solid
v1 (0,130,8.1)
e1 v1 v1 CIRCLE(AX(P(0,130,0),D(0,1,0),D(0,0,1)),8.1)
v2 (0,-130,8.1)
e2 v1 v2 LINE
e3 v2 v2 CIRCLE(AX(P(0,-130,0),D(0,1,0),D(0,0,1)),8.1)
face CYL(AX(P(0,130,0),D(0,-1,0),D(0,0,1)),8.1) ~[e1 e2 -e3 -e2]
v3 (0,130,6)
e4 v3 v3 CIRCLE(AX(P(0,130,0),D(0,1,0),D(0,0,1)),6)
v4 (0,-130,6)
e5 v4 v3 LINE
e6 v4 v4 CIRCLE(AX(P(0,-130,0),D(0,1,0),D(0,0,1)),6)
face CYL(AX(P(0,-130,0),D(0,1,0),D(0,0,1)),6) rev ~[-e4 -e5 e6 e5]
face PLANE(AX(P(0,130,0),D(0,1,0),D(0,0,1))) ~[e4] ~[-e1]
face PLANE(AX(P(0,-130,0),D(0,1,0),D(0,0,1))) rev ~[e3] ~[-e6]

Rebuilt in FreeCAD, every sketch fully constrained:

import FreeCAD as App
import Part
import Sketcher
Q = App.Units.Quantity


def add_polygon(sketch, points):
    """Adds a closed chain of lines whose ends are joined by coincident constraints."""
    first, n = sketch.GeometryCount, len(points)
    for a, b in zip(points, points[1:] + points[:1]):
        sketch.addGeometry(Part.LineSegment(App.Vector(*a, 0), App.Vector(*b, 0)), False)
    for i in range(n):
        sketch.addConstraint(Sketcher.Constraint("Coincident", first + i, 2, first + (i + 1) % n, 1))

doc = App.newDocument("Part")
params = doc.addObject("Spreadsheet::Sheet", "Params")
for row, (alias, value) in enumerate([
    ("sketch1_height", "2.1 mm"),
    ("revolution_angle", "360 deg"),
], start=1):
    params.set(f"A{row}", alias)
    params.set(f"B{row}", "=" + value)
    params.setAlias(f"B{row}", alias)

body = doc.addObject("PartDesign::Body", "Body")

# Sketch on YZ plane
sketch1 = body.newObject("Sketcher::SketchObject", "Sketch")
sketch1.AttachmentSupport = (doc.getObject("YZ_Plane"), [""])
sketch1.MapMode = "FlatFace"
add_polygon(sketch1, [(130, 8.1), (-130, 8.1), (-130, 6), (130, 6)])  # lines 0-3
sketch1.addConstraint(Sketcher.Constraint("Horizontal", 0))
sketch1.addConstraint(Sketcher.Constraint("Vertical", 1))
sketch1.addConstraint(Sketcher.Constraint("Horizontal", 2))
sketch1.addConstraint(Sketcher.Constraint("Vertical", 3))
sketch1.addConstraint(Sketcher.Constraint("DistanceX", 0, 2, -1, 1, Q("130 mm")))
sketch1.addConstraint(Sketcher.Constraint("DistanceX", -1, 1, 2, 2, Q("130 mm")))
sketch1.addConstraint(Sketcher.Constraint("DistanceY", 1, 2, 1, 1, Q("2.1 mm")))
sketch1.addConstraint(Sketcher.Constraint("DistanceY", -1, 1, 1, 2, Q("6 mm")))
sketch1.setExpression("Constraints[10]", "Params.sketch1_height")
revolution = body.newObject("PartDesign::Revolution", "Revolution")
revolution.Profile = sketch1
revolution.ReferenceAxis = (sketch1, ["H_Axis"])
revolution.setExpression("Angle", "Params.revolution_angle")

doc.recompute()
